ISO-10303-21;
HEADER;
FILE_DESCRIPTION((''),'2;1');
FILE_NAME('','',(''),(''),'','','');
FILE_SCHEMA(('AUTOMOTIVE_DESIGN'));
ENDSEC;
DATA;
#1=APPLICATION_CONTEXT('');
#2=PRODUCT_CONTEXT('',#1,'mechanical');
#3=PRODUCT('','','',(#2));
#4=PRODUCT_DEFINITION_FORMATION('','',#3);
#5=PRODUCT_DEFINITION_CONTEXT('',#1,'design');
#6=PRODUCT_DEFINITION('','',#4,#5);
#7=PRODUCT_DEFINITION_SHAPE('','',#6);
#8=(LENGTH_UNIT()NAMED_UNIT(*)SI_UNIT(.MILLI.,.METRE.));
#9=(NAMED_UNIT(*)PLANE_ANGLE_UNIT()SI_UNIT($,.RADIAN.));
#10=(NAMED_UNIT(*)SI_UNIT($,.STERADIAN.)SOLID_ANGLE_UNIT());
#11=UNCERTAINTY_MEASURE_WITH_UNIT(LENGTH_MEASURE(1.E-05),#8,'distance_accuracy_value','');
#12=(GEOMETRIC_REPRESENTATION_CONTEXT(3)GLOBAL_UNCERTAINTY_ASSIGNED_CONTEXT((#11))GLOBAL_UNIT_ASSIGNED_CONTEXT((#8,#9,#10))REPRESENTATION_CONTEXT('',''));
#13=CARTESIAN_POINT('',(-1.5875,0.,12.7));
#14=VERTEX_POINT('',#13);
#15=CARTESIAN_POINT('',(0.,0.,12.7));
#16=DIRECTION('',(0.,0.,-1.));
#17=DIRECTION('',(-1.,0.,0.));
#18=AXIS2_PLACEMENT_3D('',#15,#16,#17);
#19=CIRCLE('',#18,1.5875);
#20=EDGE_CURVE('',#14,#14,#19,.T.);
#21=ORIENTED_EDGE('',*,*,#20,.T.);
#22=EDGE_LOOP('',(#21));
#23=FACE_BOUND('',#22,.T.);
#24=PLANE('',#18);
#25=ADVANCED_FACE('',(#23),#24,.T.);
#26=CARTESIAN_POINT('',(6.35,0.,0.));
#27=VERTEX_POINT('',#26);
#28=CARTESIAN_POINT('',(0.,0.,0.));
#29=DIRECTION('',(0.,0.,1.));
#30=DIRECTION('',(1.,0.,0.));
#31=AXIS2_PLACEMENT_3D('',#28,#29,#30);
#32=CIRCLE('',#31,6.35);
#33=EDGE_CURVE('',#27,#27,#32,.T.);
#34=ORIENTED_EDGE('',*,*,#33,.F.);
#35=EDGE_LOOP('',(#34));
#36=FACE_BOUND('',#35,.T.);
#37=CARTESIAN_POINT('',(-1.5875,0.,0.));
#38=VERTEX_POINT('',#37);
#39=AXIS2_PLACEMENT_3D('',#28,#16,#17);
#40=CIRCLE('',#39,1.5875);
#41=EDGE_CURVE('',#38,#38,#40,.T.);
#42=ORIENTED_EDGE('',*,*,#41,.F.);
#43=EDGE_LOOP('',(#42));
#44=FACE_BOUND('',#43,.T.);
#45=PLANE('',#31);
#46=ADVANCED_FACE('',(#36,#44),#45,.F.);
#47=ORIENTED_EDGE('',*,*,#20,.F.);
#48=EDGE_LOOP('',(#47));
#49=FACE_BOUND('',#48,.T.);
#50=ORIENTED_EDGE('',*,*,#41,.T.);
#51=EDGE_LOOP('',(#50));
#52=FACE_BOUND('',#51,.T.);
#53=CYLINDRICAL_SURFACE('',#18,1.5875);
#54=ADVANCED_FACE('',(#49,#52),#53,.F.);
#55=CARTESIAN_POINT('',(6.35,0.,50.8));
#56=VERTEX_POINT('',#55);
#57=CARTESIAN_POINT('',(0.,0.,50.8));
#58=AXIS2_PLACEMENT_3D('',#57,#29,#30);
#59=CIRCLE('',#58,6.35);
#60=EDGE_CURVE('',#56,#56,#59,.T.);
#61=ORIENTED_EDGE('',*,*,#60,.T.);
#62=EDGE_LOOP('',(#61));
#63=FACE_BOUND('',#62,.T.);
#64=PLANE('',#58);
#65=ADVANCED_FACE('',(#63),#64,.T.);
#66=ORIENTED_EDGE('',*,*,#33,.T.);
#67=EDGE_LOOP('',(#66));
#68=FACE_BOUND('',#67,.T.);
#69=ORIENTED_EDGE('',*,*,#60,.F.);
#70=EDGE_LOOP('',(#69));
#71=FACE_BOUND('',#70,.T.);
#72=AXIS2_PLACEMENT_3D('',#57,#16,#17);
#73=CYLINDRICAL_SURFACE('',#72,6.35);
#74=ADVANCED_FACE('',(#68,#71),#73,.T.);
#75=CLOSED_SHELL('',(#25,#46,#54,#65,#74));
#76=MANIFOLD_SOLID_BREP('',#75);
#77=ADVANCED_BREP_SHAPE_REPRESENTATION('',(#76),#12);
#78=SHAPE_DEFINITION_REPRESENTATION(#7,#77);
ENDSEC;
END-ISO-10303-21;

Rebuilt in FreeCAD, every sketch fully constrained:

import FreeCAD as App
import Part
import Sketcher
from FreeCAD import Vector
Q = App.Units.Quantity

doc = App.newDocument("Part")
body = doc.addObject("PartDesign::Body", "Body")

# Sketch on XY plane
sketch1 = doc.addObject("Sketcher::SketchObject", "Sketch")
body.addObject(sketch1)
sketch1.AttachmentSupport = (doc.XY_Plane, [""])
sketch1.MapMode = "FlatFace"
sketch1.addGeometry(Part.Circle(Vector(0, 0, 0), Vector(0, 0, 1), 6.35), False)
sketch1.addConstraint(Sketcher.Constraint("Coincident", 0, 3, -1, 1))
sketch1.addConstraint(Sketcher.Constraint("Diameter", 0, Q("0.5 in")))
pad1 = doc.addObject("PartDesign::Pad", "Pad")
body.addObject(pad1)
pad1.Profile = sketch1
pad1.Length = Q("2 in")

# Sketch on XY plane
sketch2 = doc.addObject("Sketcher::SketchObject", "Sketch001")
body.addObject(sketch2)
sketch2.AttachmentSupport = (doc.XY_Plane, [""])
sketch2.MapMode = "FlatFace"
sketch2.addGeometry(Part.Circle(Vector(0, 0, 0), Vector(0, 0, 1), 1.5875), False)
sketch2.addConstraint(Sketcher.Constraint("Coincident", 0, 3, -1, 1))
sketch2.addConstraint(Sketcher.Constraint("Diameter", 0, Q("0.125 in")))
pocket1 = doc.addObject("PartDesign::Pocket", "Pocket")
body.addObject(pocket1)
pocket1.Profile = sketch2
pocket1.Length = Q("0.5 in")
pocket1.Reversed = True

doc.recompute()
